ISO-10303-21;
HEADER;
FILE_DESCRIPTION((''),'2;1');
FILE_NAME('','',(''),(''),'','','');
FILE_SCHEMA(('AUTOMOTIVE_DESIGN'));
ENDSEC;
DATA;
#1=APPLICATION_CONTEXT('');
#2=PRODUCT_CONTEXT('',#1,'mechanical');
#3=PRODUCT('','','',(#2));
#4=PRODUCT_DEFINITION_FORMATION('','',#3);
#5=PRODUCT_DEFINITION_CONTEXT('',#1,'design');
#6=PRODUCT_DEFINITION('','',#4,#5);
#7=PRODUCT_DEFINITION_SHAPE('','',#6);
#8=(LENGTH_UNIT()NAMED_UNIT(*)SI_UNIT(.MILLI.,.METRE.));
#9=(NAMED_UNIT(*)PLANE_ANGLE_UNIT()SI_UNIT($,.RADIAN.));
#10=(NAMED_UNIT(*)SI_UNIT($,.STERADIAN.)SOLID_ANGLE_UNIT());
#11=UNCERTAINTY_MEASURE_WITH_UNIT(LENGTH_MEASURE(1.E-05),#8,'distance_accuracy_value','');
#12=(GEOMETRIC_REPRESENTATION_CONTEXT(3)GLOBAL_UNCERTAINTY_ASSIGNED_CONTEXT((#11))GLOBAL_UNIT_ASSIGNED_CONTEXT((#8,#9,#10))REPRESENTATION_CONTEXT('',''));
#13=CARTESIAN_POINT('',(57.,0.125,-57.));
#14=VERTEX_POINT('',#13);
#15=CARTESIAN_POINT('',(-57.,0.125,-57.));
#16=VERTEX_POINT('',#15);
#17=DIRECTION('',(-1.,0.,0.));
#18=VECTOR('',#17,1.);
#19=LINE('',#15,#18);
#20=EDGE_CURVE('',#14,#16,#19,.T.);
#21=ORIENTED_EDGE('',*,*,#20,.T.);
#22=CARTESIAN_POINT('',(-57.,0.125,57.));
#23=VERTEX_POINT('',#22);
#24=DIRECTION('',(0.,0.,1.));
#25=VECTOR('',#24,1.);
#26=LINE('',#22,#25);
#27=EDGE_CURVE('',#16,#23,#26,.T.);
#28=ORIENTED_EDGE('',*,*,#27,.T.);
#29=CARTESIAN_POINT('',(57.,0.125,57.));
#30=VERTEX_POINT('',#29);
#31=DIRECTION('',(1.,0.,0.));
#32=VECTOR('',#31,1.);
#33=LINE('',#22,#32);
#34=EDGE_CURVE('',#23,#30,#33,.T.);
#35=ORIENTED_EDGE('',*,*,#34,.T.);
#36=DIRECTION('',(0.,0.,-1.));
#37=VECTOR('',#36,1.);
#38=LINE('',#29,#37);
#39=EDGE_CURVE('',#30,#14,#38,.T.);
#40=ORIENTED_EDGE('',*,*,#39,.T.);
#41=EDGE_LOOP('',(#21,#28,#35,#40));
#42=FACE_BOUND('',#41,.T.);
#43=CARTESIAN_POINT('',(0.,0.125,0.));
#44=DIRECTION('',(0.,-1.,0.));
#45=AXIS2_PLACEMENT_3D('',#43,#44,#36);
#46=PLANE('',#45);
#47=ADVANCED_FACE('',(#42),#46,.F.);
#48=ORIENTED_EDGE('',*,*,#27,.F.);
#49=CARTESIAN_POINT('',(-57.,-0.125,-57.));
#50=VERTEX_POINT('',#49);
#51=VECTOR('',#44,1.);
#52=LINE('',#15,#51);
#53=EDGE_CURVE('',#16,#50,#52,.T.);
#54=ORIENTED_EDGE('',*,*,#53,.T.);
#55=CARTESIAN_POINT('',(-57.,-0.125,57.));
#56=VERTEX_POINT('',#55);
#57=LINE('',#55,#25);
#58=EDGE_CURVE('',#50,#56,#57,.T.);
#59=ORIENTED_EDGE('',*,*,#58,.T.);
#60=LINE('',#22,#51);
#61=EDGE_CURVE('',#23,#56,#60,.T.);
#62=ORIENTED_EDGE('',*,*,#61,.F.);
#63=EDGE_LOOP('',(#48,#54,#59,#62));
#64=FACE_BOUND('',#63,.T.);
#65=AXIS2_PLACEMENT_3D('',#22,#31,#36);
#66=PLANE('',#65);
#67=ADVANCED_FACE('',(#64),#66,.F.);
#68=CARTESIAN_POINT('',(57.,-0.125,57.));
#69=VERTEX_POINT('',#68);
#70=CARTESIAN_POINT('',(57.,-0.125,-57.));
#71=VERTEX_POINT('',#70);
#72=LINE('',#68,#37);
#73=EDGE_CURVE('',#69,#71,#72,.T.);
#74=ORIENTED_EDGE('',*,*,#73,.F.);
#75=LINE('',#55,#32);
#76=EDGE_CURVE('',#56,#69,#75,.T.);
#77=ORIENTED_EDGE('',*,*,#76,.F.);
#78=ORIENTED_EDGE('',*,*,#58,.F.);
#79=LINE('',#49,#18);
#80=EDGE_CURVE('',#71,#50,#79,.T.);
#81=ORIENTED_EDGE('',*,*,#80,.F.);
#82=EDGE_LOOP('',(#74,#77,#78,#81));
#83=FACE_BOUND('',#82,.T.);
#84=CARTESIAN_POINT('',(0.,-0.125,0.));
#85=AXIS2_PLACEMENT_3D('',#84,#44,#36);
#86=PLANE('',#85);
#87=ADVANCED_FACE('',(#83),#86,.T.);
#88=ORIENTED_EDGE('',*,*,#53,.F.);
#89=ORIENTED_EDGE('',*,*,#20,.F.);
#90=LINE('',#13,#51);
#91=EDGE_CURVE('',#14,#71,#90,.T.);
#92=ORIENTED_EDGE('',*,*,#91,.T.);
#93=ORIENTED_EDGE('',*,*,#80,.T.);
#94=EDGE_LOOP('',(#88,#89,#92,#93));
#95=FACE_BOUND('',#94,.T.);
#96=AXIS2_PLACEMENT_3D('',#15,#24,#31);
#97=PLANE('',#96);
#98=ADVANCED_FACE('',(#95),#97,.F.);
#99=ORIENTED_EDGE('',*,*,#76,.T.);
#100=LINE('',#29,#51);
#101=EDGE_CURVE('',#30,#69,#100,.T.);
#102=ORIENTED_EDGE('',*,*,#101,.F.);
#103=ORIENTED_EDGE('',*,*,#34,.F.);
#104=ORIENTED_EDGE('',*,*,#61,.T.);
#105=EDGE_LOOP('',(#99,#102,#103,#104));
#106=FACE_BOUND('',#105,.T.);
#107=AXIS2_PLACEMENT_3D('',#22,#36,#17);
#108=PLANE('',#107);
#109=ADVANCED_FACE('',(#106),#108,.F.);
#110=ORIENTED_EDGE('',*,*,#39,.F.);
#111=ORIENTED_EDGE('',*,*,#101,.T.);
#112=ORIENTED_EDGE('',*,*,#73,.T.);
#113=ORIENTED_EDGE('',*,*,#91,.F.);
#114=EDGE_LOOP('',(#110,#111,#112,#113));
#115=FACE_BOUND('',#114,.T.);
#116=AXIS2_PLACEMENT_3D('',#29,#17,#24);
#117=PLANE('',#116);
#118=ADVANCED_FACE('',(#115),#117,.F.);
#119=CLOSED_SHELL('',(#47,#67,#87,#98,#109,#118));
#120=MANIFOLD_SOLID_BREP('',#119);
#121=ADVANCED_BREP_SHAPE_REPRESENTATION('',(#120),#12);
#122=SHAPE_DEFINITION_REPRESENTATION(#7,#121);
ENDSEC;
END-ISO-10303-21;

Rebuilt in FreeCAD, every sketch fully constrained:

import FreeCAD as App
import Part
import Sketcher

V = App.Vector
Q = App.Units.Quantity


def add_polygon(sketch, points):
    """Adds a closed chain of lines whose ends are joined by coincident constraints."""
    first, n = sketch.GeometryCount, len(points)
    for a, b in zip(points, points[1:] + points[:1]):
        sketch.addGeometry(Part.LineSegment(App.Vector(*a, 0), App.Vector(*b, 0)), False)
    for i in range(n):
        sketch.addConstraint(Sketcher.Constraint("Coincident", first + i, 2, first + (i + 1) % n, 1))

doc = App.newDocument("Part")
body = doc.addObject("PartDesign::Body", "Body")

# Sketch on XZ plane
sketch1 = body.newObject("Sketcher::SketchObject", "Sketch")
sketch1.AttachmentSupport = (doc.getObject("XZ_Plane"), [""])
sketch1.MapMode = "FlatFace"
add_polygon(sketch1, [(-57, -57), (-57, 57), (57, 57), (57, -57)])  # lines 0-3
sketch1.addConstraint(Sketcher.Constraint("Vertical", 0))
sketch1.addConstraint(Sketcher.Constraint("Horizontal", 1))
sketch1.addConstraint(Sketcher.Constraint("Vertical", 2))
sketch1.addConstraint(Sketcher.Constraint("Horizontal", 3))
sketch1.addConstraint(Sketcher.Constraint("Symmetric", 0, 2, 2, 2, -1, 1))
sketch1.addConstraint(Sketcher.Constraint("Equal", 3, 0))
sketch1.addConstraint(Sketcher.Constraint("DistanceX", 1, 1, 1, 2, Q("114 mm")))
pad1 = body.newObject("PartDesign::Pad", "Pad")
pad1.Profile = sketch1
pad1.Length = 0.25
pad1.Midplane = True

doc.recompute()
